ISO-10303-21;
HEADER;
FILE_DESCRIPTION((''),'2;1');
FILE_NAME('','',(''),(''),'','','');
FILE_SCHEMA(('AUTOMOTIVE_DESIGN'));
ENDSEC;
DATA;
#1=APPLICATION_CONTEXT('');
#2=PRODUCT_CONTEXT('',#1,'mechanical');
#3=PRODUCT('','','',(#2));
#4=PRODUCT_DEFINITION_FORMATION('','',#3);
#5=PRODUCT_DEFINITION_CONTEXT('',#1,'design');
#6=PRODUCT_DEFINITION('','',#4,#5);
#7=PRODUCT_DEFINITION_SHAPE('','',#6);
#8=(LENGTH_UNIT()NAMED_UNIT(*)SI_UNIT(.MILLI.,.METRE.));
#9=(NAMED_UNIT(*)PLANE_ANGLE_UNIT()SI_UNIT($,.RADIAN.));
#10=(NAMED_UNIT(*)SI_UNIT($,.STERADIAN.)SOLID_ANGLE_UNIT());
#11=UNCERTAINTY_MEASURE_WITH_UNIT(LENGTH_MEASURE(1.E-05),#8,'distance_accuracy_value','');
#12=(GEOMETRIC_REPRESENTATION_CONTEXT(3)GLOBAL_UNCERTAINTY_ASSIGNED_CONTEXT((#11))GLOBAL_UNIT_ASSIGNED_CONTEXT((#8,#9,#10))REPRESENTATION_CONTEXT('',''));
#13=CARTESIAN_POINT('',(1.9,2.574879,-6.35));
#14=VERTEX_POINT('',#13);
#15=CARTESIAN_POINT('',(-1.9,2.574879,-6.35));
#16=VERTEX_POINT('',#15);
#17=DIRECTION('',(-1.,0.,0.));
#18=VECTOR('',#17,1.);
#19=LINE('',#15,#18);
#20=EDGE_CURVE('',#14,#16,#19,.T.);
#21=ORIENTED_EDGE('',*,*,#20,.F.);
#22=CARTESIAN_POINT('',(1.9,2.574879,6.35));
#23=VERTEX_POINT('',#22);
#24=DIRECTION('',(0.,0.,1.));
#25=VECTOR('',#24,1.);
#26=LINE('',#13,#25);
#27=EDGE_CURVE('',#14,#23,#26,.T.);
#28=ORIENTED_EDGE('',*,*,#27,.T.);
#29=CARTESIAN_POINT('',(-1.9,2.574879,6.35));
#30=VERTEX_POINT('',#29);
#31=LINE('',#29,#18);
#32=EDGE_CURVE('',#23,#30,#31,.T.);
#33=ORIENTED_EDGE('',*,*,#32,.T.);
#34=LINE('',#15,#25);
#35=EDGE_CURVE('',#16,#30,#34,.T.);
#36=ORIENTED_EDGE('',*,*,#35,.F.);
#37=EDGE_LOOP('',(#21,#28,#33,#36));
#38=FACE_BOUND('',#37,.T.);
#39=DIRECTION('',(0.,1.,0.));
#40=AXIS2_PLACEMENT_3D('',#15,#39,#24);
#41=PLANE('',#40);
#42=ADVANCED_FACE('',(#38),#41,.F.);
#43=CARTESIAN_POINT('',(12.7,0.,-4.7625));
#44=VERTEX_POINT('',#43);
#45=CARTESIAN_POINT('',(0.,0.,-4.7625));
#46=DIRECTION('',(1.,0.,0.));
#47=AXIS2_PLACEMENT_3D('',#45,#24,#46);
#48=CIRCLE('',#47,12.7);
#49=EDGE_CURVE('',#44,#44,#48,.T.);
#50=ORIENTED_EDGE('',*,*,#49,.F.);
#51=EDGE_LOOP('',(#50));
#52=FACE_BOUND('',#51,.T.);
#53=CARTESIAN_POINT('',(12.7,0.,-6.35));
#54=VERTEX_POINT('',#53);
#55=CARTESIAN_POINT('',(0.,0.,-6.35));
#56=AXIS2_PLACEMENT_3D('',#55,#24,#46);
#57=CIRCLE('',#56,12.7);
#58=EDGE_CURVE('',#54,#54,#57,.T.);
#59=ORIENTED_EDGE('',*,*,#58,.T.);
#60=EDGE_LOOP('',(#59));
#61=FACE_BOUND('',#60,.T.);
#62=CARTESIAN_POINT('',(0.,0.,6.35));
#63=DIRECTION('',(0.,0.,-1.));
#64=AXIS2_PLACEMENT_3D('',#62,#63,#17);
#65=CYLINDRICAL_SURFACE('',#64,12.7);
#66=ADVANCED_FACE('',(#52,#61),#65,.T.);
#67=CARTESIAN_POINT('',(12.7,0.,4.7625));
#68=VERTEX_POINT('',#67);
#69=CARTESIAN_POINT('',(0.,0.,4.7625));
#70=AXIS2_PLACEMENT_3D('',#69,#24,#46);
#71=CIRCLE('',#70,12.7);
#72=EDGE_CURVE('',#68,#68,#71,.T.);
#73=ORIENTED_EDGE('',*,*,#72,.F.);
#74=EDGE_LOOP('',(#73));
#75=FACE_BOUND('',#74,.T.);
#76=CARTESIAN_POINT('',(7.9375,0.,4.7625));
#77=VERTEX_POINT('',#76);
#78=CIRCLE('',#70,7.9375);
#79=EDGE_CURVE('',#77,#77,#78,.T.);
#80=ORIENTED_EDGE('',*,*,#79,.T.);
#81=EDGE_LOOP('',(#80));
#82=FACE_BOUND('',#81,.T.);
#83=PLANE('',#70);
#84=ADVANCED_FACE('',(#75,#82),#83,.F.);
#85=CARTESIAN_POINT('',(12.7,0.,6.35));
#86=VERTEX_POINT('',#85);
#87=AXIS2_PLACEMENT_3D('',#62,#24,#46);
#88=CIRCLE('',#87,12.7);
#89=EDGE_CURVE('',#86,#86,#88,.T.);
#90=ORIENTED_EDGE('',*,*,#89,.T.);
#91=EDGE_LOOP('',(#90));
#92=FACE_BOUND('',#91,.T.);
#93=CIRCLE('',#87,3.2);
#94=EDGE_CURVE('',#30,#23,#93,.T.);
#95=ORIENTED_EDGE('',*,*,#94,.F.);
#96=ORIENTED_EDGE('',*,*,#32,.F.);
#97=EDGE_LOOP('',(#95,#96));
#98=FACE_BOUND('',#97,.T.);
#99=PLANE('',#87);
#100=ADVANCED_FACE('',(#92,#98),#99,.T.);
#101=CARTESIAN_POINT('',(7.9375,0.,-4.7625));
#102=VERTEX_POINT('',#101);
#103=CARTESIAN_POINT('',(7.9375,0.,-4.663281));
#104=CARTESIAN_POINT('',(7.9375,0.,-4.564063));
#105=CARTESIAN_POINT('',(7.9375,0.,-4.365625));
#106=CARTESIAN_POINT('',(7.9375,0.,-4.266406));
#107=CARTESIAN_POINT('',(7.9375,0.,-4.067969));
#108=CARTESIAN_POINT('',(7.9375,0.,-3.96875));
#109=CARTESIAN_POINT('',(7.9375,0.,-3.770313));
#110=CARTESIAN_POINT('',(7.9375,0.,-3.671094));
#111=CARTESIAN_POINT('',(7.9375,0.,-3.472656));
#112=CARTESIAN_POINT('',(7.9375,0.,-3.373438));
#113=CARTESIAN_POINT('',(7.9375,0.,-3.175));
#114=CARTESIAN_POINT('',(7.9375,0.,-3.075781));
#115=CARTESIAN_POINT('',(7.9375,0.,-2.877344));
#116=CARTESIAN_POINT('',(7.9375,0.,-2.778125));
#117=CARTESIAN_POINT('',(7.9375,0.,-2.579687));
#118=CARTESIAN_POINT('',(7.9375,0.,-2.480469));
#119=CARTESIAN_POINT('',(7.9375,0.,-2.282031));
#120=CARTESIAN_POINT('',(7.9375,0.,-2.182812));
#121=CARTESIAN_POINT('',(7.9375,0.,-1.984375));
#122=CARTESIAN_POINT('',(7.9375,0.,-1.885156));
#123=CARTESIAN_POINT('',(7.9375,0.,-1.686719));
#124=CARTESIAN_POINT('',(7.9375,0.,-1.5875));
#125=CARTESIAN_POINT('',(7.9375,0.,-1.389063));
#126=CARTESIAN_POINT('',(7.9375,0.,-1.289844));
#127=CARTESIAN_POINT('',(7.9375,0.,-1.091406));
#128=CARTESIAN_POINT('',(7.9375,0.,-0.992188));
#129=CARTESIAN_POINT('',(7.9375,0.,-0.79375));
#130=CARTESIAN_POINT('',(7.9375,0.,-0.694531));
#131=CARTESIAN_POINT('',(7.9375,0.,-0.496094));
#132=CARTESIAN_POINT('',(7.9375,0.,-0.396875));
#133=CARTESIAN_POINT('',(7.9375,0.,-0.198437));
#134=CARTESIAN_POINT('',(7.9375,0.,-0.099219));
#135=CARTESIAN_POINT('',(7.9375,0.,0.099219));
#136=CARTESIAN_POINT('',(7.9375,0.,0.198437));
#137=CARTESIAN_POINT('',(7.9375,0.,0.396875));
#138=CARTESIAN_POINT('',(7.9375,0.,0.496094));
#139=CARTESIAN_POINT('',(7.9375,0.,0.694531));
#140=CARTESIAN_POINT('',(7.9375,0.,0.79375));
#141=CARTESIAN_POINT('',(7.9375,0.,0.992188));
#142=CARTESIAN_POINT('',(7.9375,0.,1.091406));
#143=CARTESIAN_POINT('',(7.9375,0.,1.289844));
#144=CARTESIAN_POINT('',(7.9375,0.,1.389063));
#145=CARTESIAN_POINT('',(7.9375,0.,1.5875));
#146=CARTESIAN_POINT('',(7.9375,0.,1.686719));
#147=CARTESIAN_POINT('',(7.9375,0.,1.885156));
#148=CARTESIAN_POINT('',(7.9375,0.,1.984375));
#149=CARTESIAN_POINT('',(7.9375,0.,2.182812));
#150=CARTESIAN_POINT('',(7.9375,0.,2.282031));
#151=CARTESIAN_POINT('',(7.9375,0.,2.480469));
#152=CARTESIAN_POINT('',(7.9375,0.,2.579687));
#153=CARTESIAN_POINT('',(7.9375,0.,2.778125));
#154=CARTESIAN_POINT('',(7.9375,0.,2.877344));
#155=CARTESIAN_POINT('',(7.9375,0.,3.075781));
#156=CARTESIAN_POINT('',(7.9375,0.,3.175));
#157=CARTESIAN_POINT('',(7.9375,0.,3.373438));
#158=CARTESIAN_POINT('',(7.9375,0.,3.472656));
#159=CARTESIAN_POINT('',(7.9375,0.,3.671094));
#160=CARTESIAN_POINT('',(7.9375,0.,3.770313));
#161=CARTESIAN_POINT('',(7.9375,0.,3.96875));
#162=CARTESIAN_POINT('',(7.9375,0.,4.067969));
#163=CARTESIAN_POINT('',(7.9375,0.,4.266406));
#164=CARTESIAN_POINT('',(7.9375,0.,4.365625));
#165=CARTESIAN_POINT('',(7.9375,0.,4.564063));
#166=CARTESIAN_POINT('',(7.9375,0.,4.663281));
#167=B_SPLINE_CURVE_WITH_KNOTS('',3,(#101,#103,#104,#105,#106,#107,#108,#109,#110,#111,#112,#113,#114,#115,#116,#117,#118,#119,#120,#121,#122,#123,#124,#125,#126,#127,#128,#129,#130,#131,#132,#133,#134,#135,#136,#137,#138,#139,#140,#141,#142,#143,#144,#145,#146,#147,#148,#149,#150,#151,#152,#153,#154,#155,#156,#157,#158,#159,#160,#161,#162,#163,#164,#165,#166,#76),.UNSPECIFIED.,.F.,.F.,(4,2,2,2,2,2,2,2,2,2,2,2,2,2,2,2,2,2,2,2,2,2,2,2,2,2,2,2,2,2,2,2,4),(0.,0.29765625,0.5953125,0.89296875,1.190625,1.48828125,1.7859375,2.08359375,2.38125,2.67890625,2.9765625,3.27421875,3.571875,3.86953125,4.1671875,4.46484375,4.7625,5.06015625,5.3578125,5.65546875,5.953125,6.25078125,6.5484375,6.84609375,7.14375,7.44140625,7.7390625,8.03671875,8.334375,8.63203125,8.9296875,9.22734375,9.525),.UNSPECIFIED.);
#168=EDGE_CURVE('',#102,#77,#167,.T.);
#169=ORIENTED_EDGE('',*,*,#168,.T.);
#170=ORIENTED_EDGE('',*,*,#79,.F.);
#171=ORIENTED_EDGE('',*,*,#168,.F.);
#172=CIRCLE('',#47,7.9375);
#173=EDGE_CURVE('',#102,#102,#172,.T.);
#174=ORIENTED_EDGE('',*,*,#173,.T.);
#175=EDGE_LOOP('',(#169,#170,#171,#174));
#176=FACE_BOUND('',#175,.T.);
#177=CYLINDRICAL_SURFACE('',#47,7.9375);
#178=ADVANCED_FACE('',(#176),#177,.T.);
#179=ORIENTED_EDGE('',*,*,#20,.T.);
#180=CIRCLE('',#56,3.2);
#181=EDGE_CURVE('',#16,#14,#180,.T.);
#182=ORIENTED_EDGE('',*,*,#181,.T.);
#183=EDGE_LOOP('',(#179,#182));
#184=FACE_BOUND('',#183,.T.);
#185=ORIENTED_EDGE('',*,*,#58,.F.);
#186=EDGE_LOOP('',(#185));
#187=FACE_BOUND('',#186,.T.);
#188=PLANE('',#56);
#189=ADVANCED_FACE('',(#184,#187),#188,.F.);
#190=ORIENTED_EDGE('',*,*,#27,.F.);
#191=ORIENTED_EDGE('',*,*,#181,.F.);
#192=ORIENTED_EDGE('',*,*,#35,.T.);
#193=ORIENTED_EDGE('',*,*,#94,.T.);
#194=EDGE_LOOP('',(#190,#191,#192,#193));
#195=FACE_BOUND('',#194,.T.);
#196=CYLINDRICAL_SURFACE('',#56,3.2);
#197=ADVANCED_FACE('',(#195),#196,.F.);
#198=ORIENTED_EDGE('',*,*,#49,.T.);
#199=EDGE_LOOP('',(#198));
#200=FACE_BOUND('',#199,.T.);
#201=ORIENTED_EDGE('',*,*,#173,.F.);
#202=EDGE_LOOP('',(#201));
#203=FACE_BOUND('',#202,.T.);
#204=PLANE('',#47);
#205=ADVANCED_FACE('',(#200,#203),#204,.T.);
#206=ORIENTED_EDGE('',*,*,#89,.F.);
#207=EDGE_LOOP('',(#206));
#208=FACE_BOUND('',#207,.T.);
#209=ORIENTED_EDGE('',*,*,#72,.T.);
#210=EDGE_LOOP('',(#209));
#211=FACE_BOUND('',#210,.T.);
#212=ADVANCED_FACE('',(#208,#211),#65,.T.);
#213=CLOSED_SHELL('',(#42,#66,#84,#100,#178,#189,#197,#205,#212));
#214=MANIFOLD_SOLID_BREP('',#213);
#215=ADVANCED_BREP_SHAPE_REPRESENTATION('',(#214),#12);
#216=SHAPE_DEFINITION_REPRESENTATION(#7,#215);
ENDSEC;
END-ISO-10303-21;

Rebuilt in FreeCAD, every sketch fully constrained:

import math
import FreeCAD as App
import Part
import Sketcher

V = App.Vector
Q = App.Units.Quantity


def add_polygon(sketch, points):
    """Adds a closed chain of lines whose ends are joined by coincident constraints."""
    first, n = sketch.GeometryCount, len(points)
    for a, b in zip(points, points[1:] + points[:1]):
        sketch.addGeometry(Part.LineSegment(App.Vector(*a, 0), App.Vector(*b, 0)), False)
    for i in range(n):
        sketch.addConstraint(Sketcher.Constraint("Coincident", first + i, 2, first + (i + 1) % n, 1))

doc = App.newDocument("Part")
params = doc.addObject("Spreadsheet::Sheet", "Params")
for row, (alias, value) in enumerate([
    ("sketch1_diameter", "1 in"),
    ("pad1_length", "0.5 in"),
    ("sketch2_diameter", "0.625 in"),
    ("pocket1_length", "0.375 in"),
], start=1):
    params.set(f"A{row}", alias)
    params.set(f"B{row}", "=" + value)
    params.setAlias(f"B{row}", alias)

body = doc.addObject("PartDesign::Body", "Body")

# Sketch on XY plane
sketch1 = body.newObject("Sketcher::SketchObject", "Sketch")
sketch1.AttachmentSupport = (doc.getObject("XY_Plane"), [""])
sketch1.MapMode = "FlatFace"
sketch1.addGeometry(Part.Circle(V(0, 0, 0), V(0, 0, 1), 12.7), False)
sketch1.addConstraint(Sketcher.Constraint("Coincident", 0, 3, -1, 1))
sketch1.addConstraint(Sketcher.Constraint("Diameter", 0, Q("1 in")))
sketch1.setExpression("Constraints[1]", "Params.sketch1_diameter")
pad1 = body.newObject("PartDesign::Pad", "Pad")
pad1.Profile = sketch1
pad1.setExpression("Length", "Params.pad1_length")
pad1.Midplane = True

# Sketch on XY plane
sketch2 = body.newObject("Sketcher::SketchObject", "Sketch001")
sketch2.AttachmentSupport = (doc.getObject("XY_Plane"), [""])
sketch2.MapMode = "FlatFace"
add_polygon(sketch2, [(-17.51, 17.51), (-17.51, -17.51), (17.51, -17.51), (17.51, 17.51)])  # lines 0-3
sketch2.addGeometry(Part.Circle(V(0, 0, 0), V(0, 0, 1), 7.9375), False)  # 4
sketch2.addConstraint(Sketcher.Constraint("Vertical", 0))
sketch2.addConstraint(Sketcher.Constraint("Horizontal", 1))
sketch2.addConstraint(Sketcher.Constraint("Vertical", 2))
sketch2.addConstraint(Sketcher.Constraint("Horizontal", 3))
sketch2.addConstraint(Sketcher.Constraint("Coincident", 4, 3, -1, 1))
sketch2.addConstraint(Sketcher.Constraint("Symmetric", 0, 2, 2, 2, -1, 1))
sketch2.addConstraint(Sketcher.Constraint("Equal", 3, 0))
sketch2.addConstraint(Sketcher.Constraint("Diameter", 4, Q("0.625 in")))
sketch2.addConstraint(Sketcher.Constraint("DistanceX", 1, 1, 1, 2, Q("35.02 mm")))
sketch2.setExpression("Constraints[11]", "Params.sketch2_diameter")
pocket1 = body.newObject("PartDesign::Pocket", "Pocket")
pocket1.Profile = sketch2
pocket1.setExpression("Length", "Params.pocket1_length")
pocket1.Midplane = True

# Sketch on XY plane
sketch3 = body.newObject("Sketcher::SketchObject", "Sketch002")
sketch3.AttachmentSupport = (doc.getObject("XY_Plane"), [""])
sketch3.MapMode = "FlatFace"
sketch3.addGeometry(Part.LineSegment(V(1.9, 2.574879, 0), V(-1.9, 2.574879, 0)), False)
sketch3.addGeometry(Part.ArcOfCircle(Part.Circle(V(0, 0, 0), V(0, 0, 1), 3.2), math.radians(126.423574), math.radians(413.576426)), False)
sketch3.addConstraint(Sketcher.Constraint("Coincident", 0, 1, 1, 2))
sketch3.addConstraint(Sketcher.Constraint("Coincident", 1, 1, 0, 2))
sketch3.addConstraint(Sketcher.Constraint("Horizontal", 0))
sketch3.addConstraint(Sketcher.Constraint("Coincident", 1, 3, -1, 1))
sketch3.addConstraint(Sketcher.Constraint("Radius", 1, Q("3.2 mm")))
sketch3.addConstraint(Sketcher.Constraint("DistanceX", 0, 2, 0, 1, Q("3.8 mm")))
pocket2 = body.newObject("PartDesign::Pocket", "Pocket001")
pocket2.Profile = sketch3
pocket2.Type = "ThroughAll"
pocket2.Midplane = True

doc.recompute()
